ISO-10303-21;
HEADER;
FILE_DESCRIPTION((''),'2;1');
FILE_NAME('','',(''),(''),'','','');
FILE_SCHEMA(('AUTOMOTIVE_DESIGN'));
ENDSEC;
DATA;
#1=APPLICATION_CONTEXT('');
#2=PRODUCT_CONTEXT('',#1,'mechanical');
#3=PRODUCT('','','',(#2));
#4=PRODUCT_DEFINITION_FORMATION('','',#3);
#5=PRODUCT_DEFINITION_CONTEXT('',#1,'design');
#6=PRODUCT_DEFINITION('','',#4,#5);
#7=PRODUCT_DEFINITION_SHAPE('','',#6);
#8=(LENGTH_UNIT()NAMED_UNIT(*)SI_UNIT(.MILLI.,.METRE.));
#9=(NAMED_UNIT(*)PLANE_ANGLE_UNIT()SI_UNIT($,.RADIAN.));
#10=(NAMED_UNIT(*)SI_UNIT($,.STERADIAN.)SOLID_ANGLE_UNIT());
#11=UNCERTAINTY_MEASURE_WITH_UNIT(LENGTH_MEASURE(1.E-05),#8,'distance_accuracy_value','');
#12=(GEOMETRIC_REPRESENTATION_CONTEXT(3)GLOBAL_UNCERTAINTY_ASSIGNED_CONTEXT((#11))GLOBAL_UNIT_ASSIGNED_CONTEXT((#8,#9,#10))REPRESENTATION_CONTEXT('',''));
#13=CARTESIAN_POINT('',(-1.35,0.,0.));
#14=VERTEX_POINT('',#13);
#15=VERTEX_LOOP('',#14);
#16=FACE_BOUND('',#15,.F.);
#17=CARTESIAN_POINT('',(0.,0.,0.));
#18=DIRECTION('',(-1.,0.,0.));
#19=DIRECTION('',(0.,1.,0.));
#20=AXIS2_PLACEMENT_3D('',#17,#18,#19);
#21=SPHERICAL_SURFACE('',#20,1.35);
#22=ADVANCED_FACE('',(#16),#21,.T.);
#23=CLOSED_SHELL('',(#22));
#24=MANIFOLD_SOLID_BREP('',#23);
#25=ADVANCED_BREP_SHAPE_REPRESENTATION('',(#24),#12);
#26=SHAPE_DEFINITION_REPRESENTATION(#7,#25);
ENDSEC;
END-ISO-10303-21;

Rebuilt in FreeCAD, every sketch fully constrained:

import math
import FreeCAD as App
import Part
import Sketcher

V = App.Vector

doc = App.newDocument("Part")
params = doc.addObject("Spreadsheet::Sheet", "Params")
for row, (alias, value) in enumerate([
    ("sketch1_radius", "1.35 mm"),
    ("revolution_angle", "360 deg"),
], start=1):
    params.set(f"A{row}", alias)
    params.set(f"B{row}", "=" + value)
    params.setAlias(f"B{row}", alias)

body = doc.addObject("PartDesign::Body", "Body")

# Sketch on XY plane
sketch1 = doc.addObject("Sketcher::SketchObject", "Sketch")
body.addObject(sketch1)
sketch1.AttachmentSupport = (doc.XY_Plane, [""])
sketch1.MapMode = "FlatFace"
sketch1.addGeometry(Part.LineSegment(V(-1.4, 0, 0), V(1.4, 0, 0)), False)
sketch1.addGeometry(Part.ArcOfCircle(Part.Circle(V(0, 0, 0), V(0, 0, 1), 1.4), math.radians(0), math.radians(180)), False)
sketch1.addConstraint(Sketcher.Constraint("Coincident", 0, 1, 1, 2))
sketch1.addConstraint(Sketcher.Constraint("Coincident", 1, 1, 0, 2))
sketch1.addConstraint(Sketcher.Constraint("Horizontal", 0))
sketch1.addConstraint(Sketcher.Constraint("Coincident", 1, 3, -1, 1))
sketch1.addConstraint(Sketcher.Constraint("PointOnObject", 0, 1, -1))
sketch1.addConstraint(Sketcher.Constraint("Radius", 1, 1.35))
sketch1.setExpression("Constraints[5]", "Params.sketch1_radius")
revolution = doc.addObject("PartDesign::Revolution", "Revolution")
body.addObject(revolution)
revolution.Profile = sketch1
revolution.ReferenceAxis = (sketch1, ["H_Axis"])
revolution.setExpression("Angle", "Params.revolution_angle")

doc.recompute()
